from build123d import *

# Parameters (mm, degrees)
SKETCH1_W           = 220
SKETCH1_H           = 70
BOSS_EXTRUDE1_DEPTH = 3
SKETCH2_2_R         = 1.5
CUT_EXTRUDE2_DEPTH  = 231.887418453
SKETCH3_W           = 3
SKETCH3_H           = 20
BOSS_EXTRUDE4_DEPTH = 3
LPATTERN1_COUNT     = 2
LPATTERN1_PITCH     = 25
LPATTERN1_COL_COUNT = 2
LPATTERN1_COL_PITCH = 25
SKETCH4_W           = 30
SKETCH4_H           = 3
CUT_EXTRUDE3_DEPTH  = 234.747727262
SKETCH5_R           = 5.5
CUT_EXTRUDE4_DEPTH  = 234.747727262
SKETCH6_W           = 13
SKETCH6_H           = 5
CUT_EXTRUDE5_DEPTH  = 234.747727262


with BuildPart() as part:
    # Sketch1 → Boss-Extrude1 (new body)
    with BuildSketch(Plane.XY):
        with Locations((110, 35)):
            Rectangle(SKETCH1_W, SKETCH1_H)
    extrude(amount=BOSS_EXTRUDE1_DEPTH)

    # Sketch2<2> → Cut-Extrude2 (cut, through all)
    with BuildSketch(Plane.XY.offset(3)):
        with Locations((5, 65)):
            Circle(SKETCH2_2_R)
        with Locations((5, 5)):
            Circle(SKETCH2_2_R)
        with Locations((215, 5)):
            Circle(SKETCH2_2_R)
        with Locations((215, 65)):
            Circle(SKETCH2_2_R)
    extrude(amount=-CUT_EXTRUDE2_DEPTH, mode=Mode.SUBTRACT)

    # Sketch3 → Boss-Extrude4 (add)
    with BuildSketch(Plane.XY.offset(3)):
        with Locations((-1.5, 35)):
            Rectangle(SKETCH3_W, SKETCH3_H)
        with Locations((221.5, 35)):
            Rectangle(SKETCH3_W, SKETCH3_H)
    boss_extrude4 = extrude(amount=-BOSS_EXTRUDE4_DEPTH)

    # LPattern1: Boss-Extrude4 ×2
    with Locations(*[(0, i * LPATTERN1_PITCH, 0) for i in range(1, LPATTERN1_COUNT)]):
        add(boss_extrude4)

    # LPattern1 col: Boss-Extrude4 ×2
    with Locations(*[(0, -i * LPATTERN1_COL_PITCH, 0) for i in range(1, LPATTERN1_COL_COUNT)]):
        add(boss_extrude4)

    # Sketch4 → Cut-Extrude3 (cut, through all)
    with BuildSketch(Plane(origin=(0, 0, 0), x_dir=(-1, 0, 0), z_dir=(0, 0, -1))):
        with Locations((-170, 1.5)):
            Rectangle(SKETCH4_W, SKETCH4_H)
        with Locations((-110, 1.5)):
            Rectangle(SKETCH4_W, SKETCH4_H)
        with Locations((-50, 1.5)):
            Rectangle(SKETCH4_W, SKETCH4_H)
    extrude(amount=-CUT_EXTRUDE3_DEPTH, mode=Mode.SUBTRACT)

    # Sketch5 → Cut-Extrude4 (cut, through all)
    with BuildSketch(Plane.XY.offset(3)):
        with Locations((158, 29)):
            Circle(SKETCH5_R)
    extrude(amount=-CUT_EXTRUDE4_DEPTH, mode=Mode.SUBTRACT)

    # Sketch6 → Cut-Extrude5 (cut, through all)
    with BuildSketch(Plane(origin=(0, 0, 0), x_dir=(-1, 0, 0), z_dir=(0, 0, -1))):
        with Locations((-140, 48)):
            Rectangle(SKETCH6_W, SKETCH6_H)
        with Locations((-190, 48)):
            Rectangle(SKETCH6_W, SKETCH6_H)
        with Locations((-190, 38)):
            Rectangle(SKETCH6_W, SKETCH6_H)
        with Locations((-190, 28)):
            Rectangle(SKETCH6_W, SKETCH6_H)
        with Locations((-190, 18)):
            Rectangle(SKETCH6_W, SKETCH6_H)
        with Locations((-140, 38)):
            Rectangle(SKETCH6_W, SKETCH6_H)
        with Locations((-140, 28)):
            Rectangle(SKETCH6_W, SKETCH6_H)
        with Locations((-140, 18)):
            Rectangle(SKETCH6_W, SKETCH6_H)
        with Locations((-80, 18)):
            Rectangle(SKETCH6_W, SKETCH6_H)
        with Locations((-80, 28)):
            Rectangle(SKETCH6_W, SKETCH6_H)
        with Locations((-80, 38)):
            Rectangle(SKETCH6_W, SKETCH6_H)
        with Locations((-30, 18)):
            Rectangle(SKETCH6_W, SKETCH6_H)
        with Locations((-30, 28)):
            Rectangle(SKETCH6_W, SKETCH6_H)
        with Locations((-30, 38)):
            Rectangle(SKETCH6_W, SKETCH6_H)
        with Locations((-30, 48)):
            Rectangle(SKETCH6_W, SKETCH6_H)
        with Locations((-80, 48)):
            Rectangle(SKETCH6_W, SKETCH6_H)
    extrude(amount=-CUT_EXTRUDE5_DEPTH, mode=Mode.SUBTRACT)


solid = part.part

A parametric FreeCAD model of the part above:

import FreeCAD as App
import Part
import Sketcher

doc = App.newDocument("Part")
body = doc.addObject("PartDesign::Body", "Body")

# Sketch on XY plane
sketch1 = doc.addObject("Sketcher::SketchObject", "Sketch")
body.addObject(sketch1)
sketch1.AttachmentSupport = (doc.XY_Plane, [""])
sketch1.MapMode = "FlatFace"
sketch1.addGeometry(Part.LineSegment(App.Vector(0, 70, 0), App.Vector(0, 0, 0)), False)
sketch1.addGeometry(Part.LineSegment(App.Vector(0, 0, 0), App.Vector(220, 0, 0)), False)
sketch1.addGeometry(Part.LineSegment(App.Vector(220, 0, 0), App.Vector(220, 70, 0)), False)
sketch1.addGeometry(Part.LineSegment(App.Vector(220, 70, 0), App.Vector(0, 70, 0)), False)
sketch1.addConstraint(Sketcher.Constraint("Coincident", 0, 2, 1, 1))
sketch1.addConstraint(Sketcher.Constraint("Coincident", 1, 2, 2, 1))
sketch1.addConstraint(Sketcher.Constraint("Coincident", 2, 2, 3, 1))
sketch1.addConstraint(Sketcher.Constraint("Coincident", 3, 2, 0, 1))
sketch1.addConstraint(Sketcher.Constraint("Vertical", 0))
sketch1.addConstraint(Sketcher.Constraint("Horizontal", 1))
sketch1.addConstraint(Sketcher.Constraint("Vertical", 2))
sketch1.addConstraint(Sketcher.Constraint("Horizontal", 3))
sketch1.addConstraint(Sketcher.Constraint("Coincident", 0, 2, -1, 1))
sketch1.addConstraint(Sketcher.Constraint("DistanceX", 1, 1, 1, 2, 220.0))
sketch1.addConstraint(Sketcher.Constraint("DistanceY", 0, 2, 0, 1, 70.0))
pad1 = doc.addObject("PartDesign::Pad", "Pad")
body.addObject(pad1)
pad1.Profile = sketch1
pad1.Length = 3

# Sketch on XY plane
sketch2 = doc.addObject("Sketcher::SketchObject", "Sketch001")
body.addObject(sketch2)
sketch2.AttachmentSupport = (doc.XY_Plane, [""])
sketch2.MapMode = "FlatFace"
sketch2.AttachmentOffset = App.Placement(App.Vector(0, 0, 3), App.Rotation())
sketch2.addGeometry(Part.Circle(App.Vector(5, 65, 0), App.Vector(0, 0, 1), 1.5), False)
sketch2.addGeometry(Part.Circle(App.Vector(5, 5, 0), App.Vector(0, 0, 1), 1.5), False)
sketch2.addGeometry(Part.Circle(App.Vector(215, 5, 0), App.Vector(0, 0, 1), 1.5), False)
sketch2.addGeometry(Part.Circle(App.Vector(215, 65, 0), App.Vector(0, 0, 1), 1.5), False)
sketch2.addConstraint(Sketcher.Constraint("Equal", 0, 1))
sketch2.addConstraint(Sketcher.Constraint("Equal", 1, 2))
sketch2.addConstraint(Sketcher.Constraint("Equal", 2, 3))
sketch2.addConstraint(Sketcher.Constraint("Horizontal", 1, 3, 2, 3))
sketch2.addConstraint(Sketcher.Constraint("Horizontal", 0, 3, 3, 3))
sketch2.addConstraint(Sketcher.Constraint("Vertical", 0, 3, 1, 3))
sketch2.addConstraint(Sketcher.Constraint("Vertical", 2, 3, 3, 3))
sketch2.addConstraint(Sketcher.Constraint("Diameter", 0, 3.0))
sketch2.addConstraint(Sketcher.Constraint("DistanceX", -1, 1, 0, 3, 5.0))
sketch2.addConstraint(Sketcher.Constraint("DistanceY", -1, 1, 0, 3, 65.0))
sketch2.addConstraint(Sketcher.Constraint("DistanceY", -1, 1, 1, 3, 5.0))
sketch2.addConstraint(Sketcher.Constraint("DistanceX", -1, 1, 2, 3, 215.0))
pocket1 = doc.addObject("PartDesign::Pocket", "Pocket")
body.addObject(pocket1)
pocket1.Profile = sketch2
pocket1.Type = "ThroughAll"

# Sketch on XY plane
sketch3 = doc.addObject("Sketcher::SketchObject", "Sketch002")
body.addObject(sketch3)
sketch3.AttachmentSupport = (doc.XY_Plane, [""])
sketch3.MapMode = "FlatFace"
sketch3.AttachmentOffset = App.Placement(App.Vector(0, 0, 3), App.Rotation())
sketch3.addGeometry(Part.LineSegment(App.Vector(-3, 45, 0), App.Vector(-3, 25, 0)), False)
sketch3.addGeometry(Part.LineSegment(App.Vector(-3, 25, 0), App.Vector(0, 25, 0)), False)
sketch3.addGeometry(Part.LineSegment(App.Vector(0, 25, 0), App.Vector(0, 45, 0)), False)
sketch3.addGeometry(Part.LineSegment(App.Vector(0, 45, 0), App.Vector(-3, 45, 0)), False)
sketch3.addGeometry(Part.LineSegment(App.Vector(220, 45, 0), App.Vector(220, 25, 0)), False)
sketch3.addGeometry(Part.LineSegment(App.Vector(220, 25, 0), App.Vector(223, 25, 0)), False)
sketch3.addGeometry(Part.LineSegment(App.Vector(223, 25, 0), App.Vector(223, 45, 0)), False)
sketch3.addGeometry(Part.LineSegment(App.Vector(223, 45, 0), App.Vector(220, 45, 0)), False)
sketch3.addConstraint(Sketcher.Constraint("Coincident", 0, 2, 1, 1))
sketch3.addConstraint(Sketcher.Constraint("Coincident", 1, 2, 2, 1))
sketch3.addConstraint(Sketcher.Constraint("Coincident", 2, 2, 3, 1))
sketch3.addConstraint(Sketcher.Constraint("Coincident", 3, 2, 0, 1))
sketch3.addConstraint(Sketcher.Constraint("Coincident", 4, 2, 5, 1))
sketch3.addConstraint(Sketcher.Constraint("Coincident", 5, 2, 6, 1))
sketch3.addConstraint(Sketcher.Constraint("Coincident", 6, 2, 7, 1))
sketch3.addConstraint(Sketcher.Constraint("Coincident", 7, 2, 4, 1))
sketch3.addConstraint(Sketcher.Constraint("Vertical", 0))
sketch3.addConstraint(Sketcher.Constraint("Horizontal", 1))
sketch3.addConstraint(Sketcher.Constraint("Vertical", 2))
sketch3.addConstraint(Sketcher.Constraint("Horizontal", 3))
sketch3.addConstraint(Sketcher.Constraint("Vertical", 4))
sketch3.addConstraint(Sketcher.Constraint("Horizontal", 5))
sketch3.addConstraint(Sketcher.Constraint("Vertical", 6))
sketch3.addConstraint(Sketcher.Constraint("Horizontal", 7))
sketch3.addConstraint(Sketcher.Constraint("PointOnObject", 1, 2, -2))
sketch3.addConstraint(Sketcher.Constraint("Horizontal", 1, 2, 4, 2))
sketch3.addConstraint(Sketcher.Constraint("Horizontal", 3, 2, 6, 2))
sketch3.addConstraint(Sketcher.Constraint("Equal", 3, 5))
sketch3.addConstraint(Sketcher.Constraint("DistanceX", 1, 1, 1, 2, 3.0))
sketch3.addConstraint(Sketcher.Constraint("DistanceY", 0, 2, 0, 1, 20.0))
sketch3.addConstraint(Sketcher.Constraint("DistanceY", -1, 1, 0, 2, 25.0))
sketch3.addConstraint(Sketcher.Constraint("DistanceX", -1, 1, 4, 2, 220.0))
pad2 = doc.addObject("PartDesign::Pad", "Pad001")
body.addObject(pad2)
pad2.Profile = sketch3
pad2.Length = 3
pad2.Reversed = True
doc.recompute()

linearpattern = doc.addObject("PartDesign::LinearPattern", "LinearPattern")
body.addObject(linearpattern)
linearpattern.Originals = [pad2]
linearpattern.Direction = (doc.Y_Axis, [""])
linearpattern.Mode = "offset"
linearpattern.Offset = 25
linearpattern.Occurrences = 2
body.Tip = linearpattern
doc.recompute()

linearpattern2 = doc.addObject("PartDesign::LinearPattern", "LinearPattern001")
body.addObject(linearpattern2)
linearpattern2.Originals = [pad2]
linearpattern2.Direction = (doc.Y_Axis, [""])
linearpattern2.Mode = "offset"
linearpattern2.Offset = 25
linearpattern2.Occurrences = 2
linearpattern2.Reversed = True
body.Tip = linearpattern2

# Sketch on XY plane
sketch4 = doc.addObject("Sketcher::SketchObject", "Sketch003")
body.addObject(sketch4)
sketch4.AttachmentSupport = (doc.XY_Plane, [""])
sketch4.MapMode = "FlatFace"
sketch4.addGeometry(Part.LineSegment(App.Vector(185, 3, 0), App.Vector(185, 0, 0)), False)
sketch4.addGeometry(Part.LineSegment(App.Vector(185, 0, 0), App.Vector(155, 0, 0)), False)
sketch4.addGeometry(Part.LineSegment(App.Vector(155, 0, 0), App.Vector(155, 3, 0)), False)
sketch4.addGeometry(Part.LineSegment(App.Vector(155, 3, 0), App.Vector(185, 3, 0)), False)
sketch4.addGeometry(Part.LineSegment(App.Vector(125, 3, 0), App.Vector(125, 0, 0)), False)
sketch4.addGeometry(Part.LineSegment(App.Vector(125, 0, 0), App.Vector(95, 0, 0)), False)
sketch4.addGeometry(Part.LineSegment(App.Vector(95, 0, 0), App.Vector(95, 3, 0)), False)
sketch4.addGeometry(Part.LineSegment(App.Vector(95, 3, 0), App.Vector(125, 3, 0)), False)
sketch4.addGeometry(Part.LineSegment(App.Vector(65, 3, 0), App.Vector(65, 0, 0)), False)
sketch4.addGeometry(Part.LineSegment(App.Vector(65, 0, 0), App.Vector(35, 0, 0)), False)
sketch4.addGeometry(Part.LineSegment(App.Vector(35, 0, 0), App.Vector(35, 3, 0)), False)
sketch4.addGeometry(Part.LineSegment(App.Vector(35, 3, 0), App.Vector(65, 3, 0)), False)
sketch4.addConstraint(Sketcher.Constraint("Coincident", 0, 2, 1, 1))
sketch4.addConstraint(Sketcher.Constraint("Coincident", 1, 2, 2, 1))
sketch4.addConstraint(Sketcher.Constraint("Coincident", 2, 2, 3, 1))
sketch4.addConstraint(Sketcher.Constraint("Coincident", 3, 2, 0, 1))
sketch4.addConstraint(Sketcher.Constraint("Coincident", 4, 2, 5, 1))
sketch4.addConstraint(Sketcher.Constraint("Coincident", 5, 2, 6, 1))
sketch4.addConstraint(Sketcher.Constraint("Coincident", 6, 2, 7, 1))
sketch4.addConstraint(Sketcher.Constraint("Coincident", 7, 2, 4, 1))
sketch4.addConstraint(Sketcher.Constraint("Coincident", 8, 2, 9, 1))
sketch4.addConstraint(Sketcher.Constraint("Coincident", 9, 2, 10, 1))
sketch4.addConstraint(Sketcher.Constraint("Coincident", 10, 2, 11, 1))
sketch4.addConstraint(Sketcher.Constraint("Coincident", 11, 2, 8, 1))
sketch4.addConstraint(Sketcher.Constraint("Vertical", 0))
sketch4.addConstraint(Sketcher.Constraint("Horizontal", 1))
sketch4.addConstraint(Sketcher.Constraint("Vertical", 2))
sketch4.addConstraint(Sketcher.Constraint("Horizontal", 3))
sketch4.addConstraint(Sketcher.Constraint("Vertical", 4))
sketch4.addConstraint(Sketcher.Constraint("Horizontal", 5))
sketch4.addConstraint(Sketcher.Constraint("Vertical", 6))
sketch4.addConstraint(Sketcher.Constraint("Horizontal", 7))
sketch4.addConstraint(Sketcher.Constraint("Vertical", 8))
sketch4.addConstraint(Sketcher.Constraint("Horizontal", 9))
sketch4.addConstraint(Sketcher.Constraint("Vertical", 10))
sketch4.addConstraint(Sketcher.Constraint("Horizontal", 11))
sketch4.addConstraint(Sketcher.Constraint("PointOnObject", 0, 2, -1))
sketch4.addConstraint(Sketcher.Constraint("PointOnObject", 4, 2, -1))
sketch4.addConstraint(Sketcher.Constraint("PointOnObject", 8, 2, -1))
sketch4.addConstraint(Sketcher.Constraint("Horizontal", 3, 2, 6, 2))
sketch4.addConstraint(Sketcher.Constraint("Horizontal", 7, 2, 10, 2))
sketch4.addConstraint(Sketcher.Constraint("Equal", 3, 5))
sketch4.addConstraint(Sketcher.Constraint("Equal", 7, 9))
sketch4.addConstraint(Sketcher.Constraint("DistanceX", 1, 2, 1, 1, 30.0))
sketch4.addConstraint(Sketcher.Constraint("DistanceY", 0, 2, 0, 1, 3.0))
sketch4.addConstraint(Sketcher.Constraint("DistanceX", -1, 1, 0, 2, 185.0))
sketch4.addConstraint(Sketcher.Constraint("DistanceX", -1, 1, 4, 2, 125.0))
sketch4.addConstraint(Sketcher.Constraint("DistanceX", -1, 1, 8, 2, 65.0))
pocket2 = doc.addObject("PartDesign::Pocket", "Pocket001")
body.addObject(pocket2)
pocket2.Profile = sketch4
pocket2.Type = "ThroughAll"
pocket2.Reversed = True

# Sketch on XY plane
sketch5 = doc.addObject("Sketcher::SketchObject", "Sketch004")
body.addObject(sketch5)
sketch5.AttachmentSupport = (doc.XY_Plane, [""])
sketch5.MapMode = "FlatFace"
sketch5.AttachmentOffset = App.Placement(App.Vector(0, 0, 3), App.Rotation())
sketch5.addGeometry(Part.Circle(App.Vector(158, 29, 0), App.Vector(0, 0, 1), 6), False)
sketch5.addConstraint(Sketcher.Constraint("Diameter", 0, 11.0))
sketch5.addConstraint(Sketcher.Constraint("DistanceX", -1, 1, 0, 3, 158.0))
sketch5.addConstraint(Sketcher.Constraint("DistanceY", -1, 1, 0, 3, 29.0))
pocket3 = doc.addObject("PartDesign::Pocket", "Pocket002")
body.addObject(pocket3)
pocket3.Profile = sketch5
pocket3.Type = "ThroughAll"

# Sketch on XY plane
sketch6 = doc.addObject("Sketcher::SketchObject", "Sketch005")
body.addObject(sketch6)
sketch6.AttachmentSupport = (doc.XY_Plane, [""])
sketch6.MapMode = "FlatFace"
sketch6.addGeometry(Part.LineSegment(App.Vector(146, 50, 0), App.Vector(146, 46, 0)), False)
sketch6.addGeometry(Part.LineSegment(App.Vector(146, 46, 0), App.Vector(134, 46, 0)), False)
sketch6.addGeometry(Part.LineSegment(App.Vector(134, 46, 0), App.Vector(134, 50, 0)), False)
sketch6.addGeometry(Part.LineSegment(App.Vector(134, 50, 0), App.Vector(146, 50, 0)), False)
sketch6.addGeometry(Part.LineSegment(App.Vector(196, 50, 0), App.Vector(196, 46, 0)), False)
sketch6.addGeometry(Part.LineSegment(App.Vector(196, 46, 0), App.Vector(184, 46, 0)), False)
sketch6.addGeometry(Part.LineSegment(App.Vector(184, 46, 0), App.Vector(184, 50, 0)), False)
sketch6.addGeometry(Part.LineSegment(App.Vector(184, 50, 0), App.Vector(196, 50, 0)), False)
sketch6.addGeometry(Part.LineSegment(App.Vector(196, 40, 0), App.Vector(196, 36, 0)), False)
sketch6.addGeometry(Part.LineSegment(App.Vector(196, 36, 0), App.Vector(184, 36, 0)), False)
sketch6.addGeometry(Part.LineSegment(App.Vector(184, 36, 0), App.Vector(184, 40, 0)), False)
sketch6.addGeometry(Part.LineSegment(App.Vector(184, 40, 0), App.Vector(196, 40, 0)), False)
sketch6.addGeometry(Part.LineSegment(App.Vector(196, 30, 0), App.Vector(196, 26, 0)), False)
sketch6.addGeometry(Part.LineSegment(App.Vector(196, 26, 0), App.Vector(184, 26, 0)), False)
sketch6.addGeometry(Part.LineSegment(App.Vector(184, 26, 0), App.Vector(184, 30, 0)), False)
sketch6.addGeometry(Part.LineSegment(App.Vector(184, 30, 0), App.Vector(196, 30, 0)), False)
sketch6.addGeometry(Part.LineSegment(App.Vector(196, 20, 0), App.Vector(196, 16, 0)), False)
sketch6.addGeometry(Part.LineSegment(App.Vector(196, 16, 0), App.Vector(184, 16, 0)), False)
sketch6.addGeometry(Part.LineSegment(App.Vector(184, 16, 0), App.Vector(184, 20, 0)), False)
sketch6.addGeometry(Part.LineSegment(App.Vector(184, 20, 0), App.Vector(196, 20, 0)), False)
sketch6.addGeometry(Part.LineSegment(App.Vector(146, 40, 0), App.Vector(146, 36, 0)), False)
sketch6.addGeometry(Part.LineSegment(App.Vector(146, 36, 0), App.Vector(134, 36, 0)), False)
sketch6.addGeometry(Part.LineSegment(App.Vector(134, 36, 0), App.Vector(134, 40, 0)), False)
sketch6.addGeometry(Part.LineSegment(App.Vector(134, 40, 0), App.Vector(146, 40, 0)), False)
sketch6.addGeometry(Part.LineSegment(App.Vector(146, 30, 0), App.Vector(146, 26, 0)), False)
sketch6.addGeometry(Part.LineSegment(App.Vector(146, 26, 0), App.Vector(134, 26, 0)), False)
sketch6.addGeometry(Part.LineSegment(App.Vector(134, 26, 0), App.Vector(134, 30, 0)), False)
sketch6.addGeometry(Part.LineSegment(App.Vector(134, 30, 0), App.Vector(146, 30, 0)), False)
sketch6.addGeometry(Part.LineSegment(App.Vector(146, 20, 0), App.Vector(146, 16, 0)), False)
sketch6.addGeometry(Part.LineSegment(App.Vector(146, 16, 0), App.Vector(134, 16, 0)), False)
sketch6.addGeometry(Part.LineSegment(App.Vector(134, 16, 0), App.Vector(134, 20, 0)), False)
sketch6.addGeometry(Part.LineSegment(App.Vector(134, 20, 0), App.Vector(146, 20, 0)), False)
sketch6.addGeometry(Part.LineSegment(App.Vector(86, 20, 0), App.Vector(86, 16, 0)), False)
sketch6.addGeometry(Part.LineSegment(App.Vector(86, 16, 0), App.Vector(74, 16, 0)), False)
sketch6.addGeometry(Part.LineSegment(App.Vector(74, 16, 0), App.Vector(74, 20, 0)), False)
sketch6.addGeometry(Part.LineSegment(App.Vector(74, 20, 0), App.Vector(86, 20, 0)), False)
sketch6.addGeometry(Part.LineSegment(App.Vector(86, 30, 0), App.Vector(86, 26, 0)), False)
sketch6.addGeometry(Part.LineSegment(App.Vector(86, 26, 0), App.Vector(74, 26, 0)), False)
sketch6.addGeometry(Part.LineSegment(App.Vector(74, 26, 0), App.Vector(74, 30, 0)), False)
sketch6.addGeometry(Part.LineSegment(App.Vector(74, 30, 0), App.Vector(86, 30, 0)), False)
sketch6.addGeometry(Part.LineSegment(App.Vector(86, 40, 0), App.Vector(86, 36, 0)), False)
sketch6.addGeometry(Part.LineSegment(App.Vector(86, 36, 0), App.Vector(74, 36, 0)), False)
sketch6.addGeometry(Part.LineSegment(App.Vector(74, 36, 0), App.Vector(74, 40, 0)), False)
sketch6.addGeometry(Part.LineSegment(App.Vector(74, 40, 0), App.Vector(86, 40, 0)), False)
sketch6.addGeometry(Part.LineSegment(App.Vector(36, 20, 0), App.Vector(36, 16, 0)), False)
sketch6.addGeometry(Part.LineSegment(App.Vector(36, 16, 0), App.Vector(24, 16, 0)), False)
sketch6.addGeometry(Part.LineSegment(App.Vector(24, 16, 0), App.Vector(24, 20, 0)), False)
sketch6.addGeometry(Part.LineSegment(App.Vector(24, 20, 0), App.Vector(36, 20, 0)), False)
sketch6.addGeometry(Part.LineSegment(App.Vector(36, 30, 0), App.Vector(36, 26, 0)), False)
sketch6.addGeometry(Part.LineSegment(App.Vector(36, 26, 0), App.Vector(24, 26, 0)), False)
sketch6.addGeometry(Part.LineSegment(App.Vector(24, 26, 0), App.Vector(24, 30, 0)), False)
sketch6.addGeometry(Part.LineSegment(App.Vector(24, 30, 0), App.Vector(36, 30, 0)), False)
sketch6.addGeometry(Part.LineSegment(App.Vector(36, 40, 0), App.Vector(36, 36, 0)), False)
sketch6.addGeometry(Part.LineSegment(App.Vector(36, 36, 0), App.Vector(24, 36, 0)), False)
sketch6.addGeometry(Part.LineSegment(App.Vector(24, 36, 0), App.Vector(24, 40, 0)), False)
sketch6.addGeometry(Part.LineSegment(App.Vector(24, 40, 0), App.Vector(36, 40, 0)), False)
sketch6.addGeometry(Part.LineSegment(App.Vector(36, 50, 0), App.Vector(36, 46, 0)), False)
sketch6.addGeometry(Part.LineSegment(App.Vector(36, 46, 0), App.Vector(24, 46, 0)), False)
sketch6.addGeometry(Part.LineSegment(App.Vector(24, 46, 0), App.Vector(24, 50, 0)), False)
sketch6.addGeometry(Part.LineSegment(App.Vector(24, 50, 0), App.Vector(36, 50, 0)), False)
sketch6.addGeometry(Part.LineSegment(App.Vector(86, 50, 0), App.Vector(86, 46, 0)), False)
sketch6.addGeometry(Part.LineSegment(App.Vector(86, 46, 0), App.Vector(74, 46, 0)), False)
sketch6.addGeometry(Part.LineSegment(App.Vector(74, 46, 0), App.Vector(74, 50, 0)), False)
sketch6.addGeometry(Part.LineSegment(App.Vector(74, 50, 0), App.Vector(86, 50, 0)), False)
sketch6.addConstraint(Sketcher.Constraint("Coincident", 0, 2, 1, 1))
sketch6.addConstraint(Sketcher.Constraint("Coincident", 1, 2, 2, 1))
sketch6.addConstraint(Sketcher.Constraint("Coincident", 2, 2, 3, 1))
sketch6.addConstraint(Sketcher.Constraint("Coincident", 3, 2, 0, 1))
sketch6.addConstraint(Sketcher.Constraint("Coincident", 4, 2, 5, 1))
sketch6.addConstraint(Sketcher.Constraint("Coincident", 5, 2, 6, 1))
sketch6.addConstraint(Sketcher.Constraint("Coincident", 6, 2, 7, 1))
sketch6.addConstraint(Sketcher.Constraint("Coincident", 7, 2, 4, 1))
sketch6.addConstraint(Sketcher.Constraint("Coincident", 8, 2, 9, 1))
sketch6.addConstraint(Sketcher.Constraint("Coincident", 9, 2, 10, 1))
sketch6.addConstraint(Sketcher.Constraint("Coincident", 10, 2, 11, 1))
sketch6.addConstraint(Sketcher.Constraint("Coincident", 11, 2, 8, 1))
sketch6.addConstraint(Sketcher.Constraint("Coincident", 12, 2, 13, 1))
sketch6.addConstraint(Sketcher.Constraint("Coincident", 13, 2, 14, 1))
sketch6.addConstraint(Sketcher.Constraint("Coincident", 14, 2, 15, 1))
sketch6.addConstraint(Sketcher.Constraint("Coincident", 15, 2, 12, 1))
sketch6.addConstraint(Sketcher.Constraint("Coincident", 16, 2, 17, 1))
sketch6.addConstraint(Sketcher.Constraint("Coincident", 17, 2, 18, 1))
sketch6.addConstraint(Sketcher.Constraint("Coincident", 18, 2, 19, 1))
sketch6.addConstraint(Sketcher.Constraint("Coincident", 19, 2, 16, 1))
sketch6.addConstraint(Sketcher.Constraint("Coincident", 20, 2, 21, 1))
sketch6.addConstraint(Sketcher.Constraint("Coincident", 21, 2, 22, 1))
sketch6.addConstraint(Sketcher.Constraint("Coincident", 22, 2, 23, 1))
sketch6.addConstraint(Sketcher.Constraint("Coincident", 23, 2, 20, 1))
sketch6.addConstraint(Sketcher.Constraint("Coincident", 24, 2, 25, 1))
sketch6.addConstraint(Sketcher.Constraint("Coincident", 25, 2, 26, 1))
sketch6.addConstraint(Sketcher.Constraint("Coincident", 26, 2, 27, 1))
sketch6.addConstraint(Sketcher.Constraint("Coincident", 27, 2, 24, 1))
sketch6.addConstraint(Sketcher.Constraint("Coincident", 28, 2, 29, 1))
sketch6.addConstraint(Sketcher.Constraint("Coincident", 29, 2, 30, 1))
sketch6.addConstraint(Sketcher.Constraint("Coincident", 30, 2, 31, 1))
sketch6.addConstraint(Sketcher.Constraint("Coincident", 31, 2, 28, 1))
sketch6.addConstraint(Sketcher.Constraint("Coincident", 32, 2, 33, 1))
sketch6.addConstraint(Sketcher.Constraint("Coincident", 33, 2, 34, 1))
sketch6.addConstraint(Sketcher.Constraint("Coincident", 34, 2, 35, 1))
sketch6.addConstraint(Sketcher.Constraint("Coincident", 35, 2, 32, 1))
sketch6.addConstraint(Sketcher.Constraint("Coincident", 36, 2, 37, 1))
sketch6.addConstraint(Sketcher.Constraint("Coincident", 37, 2, 38, 1))
sketch6.addConstraint(Sketcher.Constraint("Coincident", 38, 2, 39, 1))
sketch6.addConstraint(Sketcher.Constraint("Coincident", 39, 2, 36, 1))
sketch6.addConstraint(Sketcher.Constraint("Coincident", 40, 2, 41, 1))
sketch6.addConstraint(Sketcher.Constraint("Coincident", 41, 2, 42, 1))
sketch6.addConstraint(Sketcher.Constraint("Coincident", 42, 2, 43, 1))
sketch6.addConstraint(Sketcher.Constraint("Coincident", 43, 2, 40, 1))
sketch6.addConstraint(Sketcher.Constraint("Coincident", 44, 2, 45, 1))
sketch6.addConstraint(Sketcher.Constraint("Coincident", 45, 2, 46, 1))
sketch6.addConstraint(Sketcher.Constraint("Coincident", 46, 2, 47, 1))
sketch6.addConstraint(Sketcher.Constraint("Coincident", 47, 2, 44, 1))
sketch6.addConstraint(Sketcher.Constraint("Coincident", 48, 2, 49, 1))
sketch6.addConstraint(Sketcher.Constraint("Coincident", 49, 2, 50, 1))
sketch6.addConstraint(Sketcher.Constraint("Coincident", 50, 2, 51, 1))
sketch6.addConstraint(Sketcher.Constraint("Coincident", 51, 2, 48, 1))
sketch6.addConstraint(Sketcher.Constraint("Coincident", 52, 2, 53, 1))
sketch6.addConstraint(Sketcher.Constraint("Coincident", 53, 2, 54, 1))
sketch6.addConstraint(Sketcher.Constraint("Coincident", 54, 2, 55, 1))
sketch6.addConstraint(Sketcher.Constraint("Coincident", 55, 2, 52, 1))
sketch6.addConstraint(Sketcher.Constraint("Coincident", 56, 2, 57, 1))
sketch6.addConstraint(Sketcher.Constraint("Coincident", 57, 2, 58, 1))
sketch6.addConstraint(Sketcher.Constraint("Coincident", 58, 2, 59, 1))
sketch6.addConstraint(Sketcher.Constraint("Coincident", 59, 2, 56, 1))
sketch6.addConstraint(Sketcher.Constraint("Coincident", 60, 2, 61, 1))
sketch6.addConstraint(Sketcher.Constraint("Coincident", 61, 2, 62, 1))
sketch6.addConstraint(Sketcher.Constraint("Coincident", 62, 2, 63, 1))
sketch6.addConstraint(Sketcher.Constraint("Coincident", 63, 2, 60, 1))
sketch6.addConstraint(Sketcher.Constraint("Vertical", 0))
sketch6.addConstraint(Sketcher.Constraint("Horizontal", 1))
sketch6.addConstraint(Sketcher.Constraint("Vertical", 2))
sketch6.addConstraint(Sketcher.Constraint("Horizontal", 3))
sketch6.addConstraint(Sketcher.Constraint("Vertical", 4))
sketch6.addConstraint(Sketcher.Constraint("Horizontal", 5))
sketch6.addConstraint(Sketcher.Constraint("Vertical", 6))
sketch6.addConstraint(Sketcher.Constraint("Horizontal", 7))
sketch6.addConstraint(Sketcher.Constraint("Vertical", 8))
sketch6.addConstraint(Sketcher.Constraint("Horizontal", 9))
sketch6.addConstraint(Sketcher.Constraint("Vertical", 10))
sketch6.addConstraint(Sketcher.Constraint("Horizontal", 11))
sketch6.addConstraint(Sketcher.Constraint("Vertical", 12))
sketch6.addConstraint(Sketcher.Constraint("Horizontal", 13))
sketch6.addConstraint(Sketcher.Constraint("Vertical", 14))
sketch6.addConstraint(Sketcher.Constraint("Horizontal", 15))
sketch6.addConstraint(Sketcher.Constraint("Vertical", 16))
sketch6.addConstraint(Sketcher.Constraint("Horizontal", 17))
sketch6.addConstraint(Sketcher.Constraint("Vertical", 18))
sketch6.addConstraint(Sketcher.Constraint("Horizontal", 19))
sketch6.addConstraint(Sketcher.Constraint("Vertical", 20))
sketch6.addConstraint(Sketcher.Constraint("Horizontal", 21))
sketch6.addConstraint(Sketcher.Constraint("Vertical", 22))
sketch6.addConstraint(Sketcher.Constraint("Horizontal", 23))
sketch6.addConstraint(Sketcher.Constraint("Vertical", 24))
sketch6.addConstraint(Sketcher.Constraint("Horizontal", 25))
sketch6.addConstraint(Sketcher.Constraint("Vertical", 26))
sketch6.addConstraint(Sketcher.Constraint("Horizontal", 27))
sketch6.addConstraint(Sketcher.Constraint("Vertical", 28))
sketch6.addConstraint(Sketcher.Constraint("Horizontal", 29))
sketch6.addConstraint(Sketcher.Constraint("Vertical", 30))
sketch6.addConstraint(Sketcher.Constraint("Horizontal", 31))
sketch6.addConstraint(Sketcher.Constraint("Vertical", 32))
sketch6.addConstraint(Sketcher.Constraint("Horizontal", 33))
sketch6.addConstraint(Sketcher.Constraint("Vertical", 34))
sketch6.addConstraint(Sketcher.Constraint("Horizontal", 35))
sketch6.addConstraint(Sketcher.Constraint("Vertical", 36))
sketch6.addConstraint(Sketcher.Constraint("Horizontal", 37))
sketch6.addConstraint(Sketcher.Constraint("Vertical", 38))
sketch6.addConstraint(Sketcher.Constraint("Horizontal", 39))
sketch6.addConstraint(Sketcher.Constraint("Vertical", 40))
sketch6.addConstraint(Sketcher.Constraint("Horizontal", 41))
sketch6.addConstraint(Sketcher.Constraint("Vertical", 42))
sketch6.addConstraint(Sketcher.Constraint("Horizontal", 43))
sketch6.addConstraint(Sketcher.Constraint("Vertical", 44))
sketch6.addConstraint(Sketcher.Constraint("Horizontal", 45))
sketch6.addConstraint(Sketcher.Constraint("Vertical", 46))
sketch6.addConstraint(Sketcher.Constraint("Horizontal", 47))
sketch6.addConstraint(Sketcher.Constraint("Vertical", 48))
sketch6.addConstraint(Sketcher.Constraint("Horizontal", 49))
sketch6.addConstraint(Sketcher.Constraint("Vertical", 50))
sketch6.addConstraint(Sketcher.Constraint("Horizontal", 51))
sketch6.addConstraint(Sketcher.Constraint("Vertical", 52))
sketch6.addConstraint(Sketcher.Constraint("Horizontal", 53))
sketch6.addConstraint(Sketcher.Constraint("Vertical", 54))
sketch6.addConstraint(Sketcher.Constraint("Horizontal", 55))
sketch6.addConstraint(Sketcher.Constraint("Vertical", 56))
sketch6.addConstraint(Sketcher.Constraint("Horizontal", 57))
sketch6.addConstraint(Sketcher.Constraint("Vertical", 58))
sketch6.addConstraint(Sketcher.Constraint("Horizontal", 59))
sketch6.addConstraint(Sketcher.Constraint("Vertical", 60))
sketch6.addConstraint(Sketcher.Constraint("Horizontal", 61))
sketch6.addConstraint(Sketcher.Constraint("Vertical", 62))
sketch6.addConstraint(Sketcher.Constraint("Horizontal", 63))
sketch6.addConstraint(Sketcher.Constraint("Horizontal", 1, 2, 4, 2))
sketch6.addConstraint(Sketcher.Constraint("Horizontal", 3, 2, 6, 2))
sketch6.addConstraint(Sketcher.Constraint("Horizontal", 9, 2, 20, 2))
sketch6.addConstraint(Sketcher.Constraint("Horizontal", 11, 2, 22, 2))
sketch6.addConstraint(Sketcher.Constraint("Horizontal", 13, 2, 24, 2))
sketch6.addConstraint(Sketcher.Constraint("Horizontal", 15, 2, 26, 2))
sketch6.addConstraint(Sketcher.Constraint("Horizontal", 17, 2, 28, 2))
sketch6.addConstraint(Sketcher.Constraint("Horizontal", 19, 2, 30, 2))
sketch6.addConstraint(Sketcher.Constraint("Horizontal", 29, 2, 32, 2))
sketch6.addConstraint(Sketcher.Constraint("Horizontal", 31, 2, 34, 2))
sketch6.addConstraint(Sketcher.Constraint("Horizontal", 25, 2, 36, 2))
sketch6.addConstraint(Sketcher.Constraint("Horizontal", 27, 2, 38, 2))
sketch6.addConstraint(Sketcher.Constraint("Horizontal", 21, 2, 40, 2))
sketch6.addConstraint(Sketcher.Constraint("Horizontal", 23, 2, 42, 2))
sketch6.addConstraint(Sketcher.Constraint("Horizontal", 33, 2, 44, 2))
sketch6.addConstraint(Sketcher.Constraint("Horizontal", 35, 2, 46, 2))
sketch6.addConstraint(Sketcher.Constraint("Horizontal", 37, 2, 48, 2))
sketch6.addConstraint(Sketcher.Constraint("Horizontal", 39, 2, 50, 2))
sketch6.addConstraint(Sketcher.Constraint("Horizontal", 41, 2, 52, 2))
sketch6.addConstraint(Sketcher.Constraint("Horizontal", 43, 2, 54, 2))
sketch6.addConstraint(Sketcher.Constraint("Horizontal", 5, 2, 56, 2))
sketch6.addConstraint(Sketcher.Constraint("Horizontal", 7, 2, 58, 2))
sketch6.addConstraint(Sketcher.Constraint("Horizontal", 57, 2, 60, 2))
sketch6.addConstraint(Sketcher.Constraint("Horizontal", 59, 2, 62, 2))
sketch6.addConstraint(Sketcher.Constraint("Vertical", 7, 2, 8, 2))
sketch6.addConstraint(Sketcher.Constraint("Vertical", 6, 2, 9, 2))
sketch6.addConstraint(Sketcher.Constraint("Vertical", 11, 2, 12, 2))
sketch6.addConstraint(Sketcher.Constraint("Vertical", 10, 2, 13, 2))
sketch6.addConstraint(Sketcher.Constraint("Vertical", 15, 2, 16, 2))
sketch6.addConstraint(Sketcher.Constraint("Vertical", 14, 2, 17, 2))
sketch6.addConstraint(Sketcher.Constraint("Vertical", 3, 2, 20, 2))
sketch6.addConstraint(Sketcher.Constraint("Vertical", 2, 2, 21, 2))
sketch6.addConstraint(Sketcher.Constraint("Vertical", 23, 2, 24, 2))
sketch6.addConstraint(Sketcher.Constraint("Vertical", 22, 2, 25, 2))
sketch6.addConstraint(Sketcher.Constraint("Vertical", 27, 2, 28, 2))
sketch6.addConstraint(Sketcher.Constraint("Vertical", 26, 2, 29, 2))
sketch6.addConstraint(Sketcher.Constraint("Vertical", 35, 2, 36, 2))
sketch6.addConstraint(Sketcher.Constraint("Vertical", 34, 2, 37, 2))
sketch6.addConstraint(Sketcher.Constraint("Vertical", 39, 2, 40, 2))
sketch6.addConstraint(Sketcher.Constraint("Vertical", 38, 2, 41, 2))
sketch6.addConstraint(Sketcher.Constraint("Vertical", 47, 2, 48, 2))
sketch6.addConstraint(Sketcher.Constraint("Vertical", 46, 2, 49, 2))
sketch6.addConstraint(Sketcher.Constraint("Vertical", 51, 2, 52, 2))
sketch6.addConstraint(Sketcher.Constraint("Vertical", 50, 2, 53, 2))
sketch6.addConstraint(Sketcher.Constraint("Vertical", 55, 2, 56, 2))
sketch6.addConstraint(Sketcher.Constraint("Vertical", 54, 2, 57, 2))
sketch6.addConstraint(Sketcher.Constraint("Vertical", 43, 2, 60, 2))
sketch6.addConstraint(Sketcher.Constraint("Vertical", 42, 2, 61, 2))
sketch6.addConstraint(Sketcher.Constraint("Equal", 3, 5))
sketch6.addConstraint(Sketcher.Constraint("Equal", 31, 33))
sketch6.addConstraint(Sketcher.Constraint("Equal", 43, 45))
sketch6.addConstraint(Sketcher.Constraint("Equal", 6, 8))
sketch6.addConstraint(Sketcher.Constraint("Equal", 10, 12))
sketch6.addConstraint(Sketcher.Constraint("Equal", 14, 16))
sketch6.addConstraint(Sketcher.Constraint("DistanceX", 1, 2, 1, 1, 13.0))
sketch6.addConstraint(Sketcher.Constraint("DistanceY", 0, 2, 0, 1, 5.0))
sketch6.addConstraint(Sketcher.Constraint("DistanceX", -1, 1, 0, 2, 146.5))
sketch6.addConstraint(Sketcher.Constraint("DistanceY", -1, 1, 0, 2, 45.5))
sketch6.addConstraint(Sketcher.Constraint("DistanceX", -1, 1, 4, 2, 196.5))
sketch6.addConstraint(Sketcher.Constraint("DistanceY", -1, 1, 8, 2, 35.5))
sketch6.addConstraint(Sketcher.Constraint("DistanceY", -1, 1, 12, 2, 25.5))
sketch6.addConstraint(Sketcher.Constraint("DistanceY", -1, 1, 16, 2, 15.5))
sketch6.addConstraint(Sketcher.Constraint("DistanceX", -1, 1, 32, 2, 86.5))
sketch6.addConstraint(Sketcher.Constraint("DistanceX", -1, 1, 44, 2, 36.5))
pocket4 = doc.addObject("PartDesign::Pocket", "Pocket003")
body.addObject(pocket4)
pocket4.Profile = sketch6
pocket4.Type = "ThroughAll"
pocket4.Reversed = True

doc.recompute()
